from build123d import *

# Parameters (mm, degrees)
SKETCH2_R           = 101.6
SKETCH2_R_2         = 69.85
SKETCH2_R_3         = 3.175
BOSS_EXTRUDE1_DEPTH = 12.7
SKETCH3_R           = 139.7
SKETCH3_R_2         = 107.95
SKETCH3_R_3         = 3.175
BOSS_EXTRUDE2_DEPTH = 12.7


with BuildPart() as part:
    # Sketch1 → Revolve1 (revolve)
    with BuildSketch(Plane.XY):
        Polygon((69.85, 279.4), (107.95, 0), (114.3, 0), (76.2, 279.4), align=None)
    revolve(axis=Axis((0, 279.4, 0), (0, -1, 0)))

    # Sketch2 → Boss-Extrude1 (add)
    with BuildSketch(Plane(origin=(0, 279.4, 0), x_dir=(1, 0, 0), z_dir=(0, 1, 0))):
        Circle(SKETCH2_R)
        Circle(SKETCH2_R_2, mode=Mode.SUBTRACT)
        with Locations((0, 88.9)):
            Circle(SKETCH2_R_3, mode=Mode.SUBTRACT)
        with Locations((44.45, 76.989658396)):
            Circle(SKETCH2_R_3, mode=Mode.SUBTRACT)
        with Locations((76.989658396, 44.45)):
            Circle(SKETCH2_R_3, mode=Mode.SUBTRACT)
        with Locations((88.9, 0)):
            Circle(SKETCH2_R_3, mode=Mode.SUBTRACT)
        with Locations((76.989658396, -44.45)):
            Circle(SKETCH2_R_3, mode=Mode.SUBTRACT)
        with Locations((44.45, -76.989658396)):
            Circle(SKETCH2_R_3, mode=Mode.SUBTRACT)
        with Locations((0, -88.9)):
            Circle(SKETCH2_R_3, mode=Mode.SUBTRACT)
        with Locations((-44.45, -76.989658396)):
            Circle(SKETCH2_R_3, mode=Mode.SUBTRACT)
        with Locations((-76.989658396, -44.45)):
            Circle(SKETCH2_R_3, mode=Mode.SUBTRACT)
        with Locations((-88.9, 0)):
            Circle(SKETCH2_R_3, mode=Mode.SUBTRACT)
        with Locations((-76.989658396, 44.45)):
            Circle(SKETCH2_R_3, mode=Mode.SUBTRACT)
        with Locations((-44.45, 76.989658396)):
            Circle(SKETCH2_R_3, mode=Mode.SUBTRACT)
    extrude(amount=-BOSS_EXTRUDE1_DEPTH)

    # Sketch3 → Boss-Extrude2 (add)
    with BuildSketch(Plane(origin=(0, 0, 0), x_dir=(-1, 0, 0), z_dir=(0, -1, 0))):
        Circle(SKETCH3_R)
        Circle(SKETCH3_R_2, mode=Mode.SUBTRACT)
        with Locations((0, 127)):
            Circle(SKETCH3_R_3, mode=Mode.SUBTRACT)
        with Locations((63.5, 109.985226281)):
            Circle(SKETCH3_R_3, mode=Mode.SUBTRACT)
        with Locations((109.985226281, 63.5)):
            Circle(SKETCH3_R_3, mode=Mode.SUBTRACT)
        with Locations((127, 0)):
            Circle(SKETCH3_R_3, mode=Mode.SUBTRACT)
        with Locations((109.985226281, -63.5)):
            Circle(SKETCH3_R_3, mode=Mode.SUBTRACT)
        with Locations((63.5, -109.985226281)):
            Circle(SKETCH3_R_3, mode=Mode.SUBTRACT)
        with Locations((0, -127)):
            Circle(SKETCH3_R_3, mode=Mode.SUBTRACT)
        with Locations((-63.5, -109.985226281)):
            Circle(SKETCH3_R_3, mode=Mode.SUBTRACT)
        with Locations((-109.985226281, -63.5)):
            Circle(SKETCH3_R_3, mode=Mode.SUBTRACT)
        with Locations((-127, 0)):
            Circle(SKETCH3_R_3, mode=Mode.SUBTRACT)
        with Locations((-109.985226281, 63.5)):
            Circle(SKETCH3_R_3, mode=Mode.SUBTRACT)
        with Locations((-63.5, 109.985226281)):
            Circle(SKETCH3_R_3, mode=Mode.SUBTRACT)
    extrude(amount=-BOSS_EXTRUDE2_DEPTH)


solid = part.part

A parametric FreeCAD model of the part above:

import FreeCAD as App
import Part
import Sketcher
Q = App.Units.Quantity


def add_polygon(sketch, points):
    """Adds a closed chain of lines whose ends are joined by coincident constraints."""
    first, n = sketch.GeometryCount, len(points)
    for a, b in zip(points, points[1:] + points[:1]):
        sketch.addGeometry(Part.LineSegment(App.Vector(*a, 0), App.Vector(*b, 0)), False)
    for i in range(n):
        sketch.addConstraint(Sketcher.Constraint("Coincident", first + i, 2, first + (i + 1) % n, 1))

doc = App.newDocument("Part")
body = doc.addObject("PartDesign::Body", "Body")

# Sketch on XY plane
sketch1 = body.newObject("Sketcher::SketchObject", "Sketch")
sketch1.AttachmentSupport = (doc.getObject("XY_Plane"), [""])
sketch1.MapMode = "FlatFace"
add_polygon(sketch1, [(69.85, 279.4), (107.95, 0), (114.3, 0), (76.2, 279.4)])  # lines 0-3
sketch1.addConstraint(Sketcher.Constraint("Horizontal", 1))
sketch1.addConstraint(Sketcher.Constraint("Horizontal", 3))
sketch1.addConstraint(Sketcher.Constraint("PointOnObject", 0, 2, -1))
sketch1.addConstraint(Sketcher.Constraint("Parallel", 0, 2))
sketch1.addConstraint(Sketcher.Constraint("DistanceX", -1, 1, 2, 2, Q("3 in")))
sketch1.addConstraint(Sketcher.Constraint("DistanceY", -1, 1, 2, 2, Q("11 in")))
sketch1.addConstraint(Sketcher.Constraint("DistanceX", 1, 1, 1, 2, Q("0.25 in")))
sketch1.addConstraint(Sketcher.Constraint("DistanceX", -1, 1, 1, 2, Q("4.5 in")))
revolution = body.newObject("PartDesign::Revolution", "Revolution")
revolution.Profile = sketch1
revolution.ReferenceAxis = (sketch1, ["V_Axis"])
revolution.Angle = 360

# Sketch on XZ plane
sketch2 = body.newObject("Sketcher::SketchObject", "Sketch001")
sketch2.AttachmentSupport = (doc.getObject("XZ_Plane"), [""])
sketch2.MapMode = "FlatFace"
sketch2.AttachmentOffset = App.Placement(App.Vector(0, 0, -11 * 25.4), App.Rotation())
sketch2.addGeometry(Part.Circle(App.Vector(0, 0, 0), App.Vector(0, 0, 1), 101.6), False)
sketch2.addGeometry(Part.Circle(App.Vector(-44.45, 76.989658, 0), App.Vector(0, 0, 1), 3.175), False)
sketch2.addGeometry(Part.Circle(App.Vector(-76.989658, 44.45, 0), App.Vector(0, 0, 1), 3.175), False)
sketch2.addGeometry(Part.Circle(App.Vector(0, 88.9, 0), App.Vector(0, 0, 1), 3.175), False)
sketch2.addGeometry(Part.Circle(App.Vector(44.45, 76.989658, 0), App.Vector(0, 0, 1), 3.175), False)
sketch2.addGeometry(Part.Circle(App.Vector(76.989658, 44.45, 0), App.Vector(0, 0, 1), 3.175), False)
sketch2.addGeometry(Part.Circle(App.Vector(-88.9, 0, 0), App.Vector(0, 0, 1), 3.175), False)
sketch2.addGeometry(Part.Circle(App.Vector(-76.989658, -44.45, 0), App.Vector(0, 0, 1), 3.175), False)
sketch2.addGeometry(Part.Circle(App.Vector(-44.45, -76.989658, 0), App.Vector(0, 0, 1), 3.175), False)
sketch2.addGeometry(Part.Circle(App.Vector(0, 0, 0), App.Vector(0, 0, 1), 69.85), False)
sketch2.addGeometry(Part.Circle(App.Vector(88.9, 0, 0), App.Vector(0, 0, 1), 3.175), False)
sketch2.addGeometry(Part.Circle(App.Vector(76.989658, -44.45, 0), App.Vector(0, 0, 1), 3.175), False)
sketch2.addGeometry(Part.Circle(App.Vector(0, -88.9, 0), App.Vector(0, 0, 1), 3.175), False)
sketch2.addGeometry(Part.Circle(App.Vector(44.45, -76.989658, 0), App.Vector(0, 0, 1), 3.175), False)
sketch2.addConstraint(Sketcher.Constraint("Coincident", 0, 3, -1, 1))
sketch2.addConstraint(Sketcher.Constraint("Coincident", 9, 3, -1, 1))
sketch2.addConstraint(Sketcher.Constraint("Equal", 1, 2))
sketch2.addConstraint(Sketcher.Constraint("Equal", 2, 3))
sketch2.addConstraint(Sketcher.Constraint("Equal", 3, 4))
sketch2.addConstraint(Sketcher.Constraint("Equal", 4, 5))
sketch2.addConstraint(Sketcher.Constraint("Equal", 5, 6))
sketch2.addConstraint(Sketcher.Constraint("Equal", 6, 7))
sketch2.addConstraint(Sketcher.Constraint("Equal", 7, 8))
sketch2.addConstraint(Sketcher.Constraint("Equal", 8, 10))
sketch2.addConstraint(Sketcher.Constraint("Equal", 10, 11))
sketch2.addConstraint(Sketcher.Constraint("Equal", 11, 12))
sketch2.addConstraint(Sketcher.Constraint("Equal", 12, 13))
sketch2.addConstraint(Sketcher.Constraint("Symmetric", 5, 3, 7, 3, -1, 1))
sketch2.addConstraint(Sketcher.Constraint("Symmetric", 4, 3, 8, 3, -1, 1))
sketch2.addConstraint(Sketcher.Constraint("Symmetric", 6, 3, 10, 3, -1, 1))
sketch2.addConstraint(Sketcher.Constraint("Symmetric", 2, 3, 11, 3, -1, 1))
sketch2.addConstraint(Sketcher.Constraint("Symmetric", 3, 3, 12, 3, -1, 1))
sketch2.addConstraint(Sketcher.Constraint("Symmetric", 1, 3, 13, 3, -1, 1))
sketch2.addConstraint(Sketcher.Constraint("Symmetric", 1, 3, 4, 3, -2))
sketch2.addConstraint(Sketcher.Constraint("Symmetric", 2, 3, 5, 3, -2))
sketch2.addConstraint(Sketcher.Constraint("PointOnObject", 3, 3, -2))
sketch2.addConstraint(Sketcher.Constraint("PointOnObject", 6, 3, -1))
sketch2.addConstraint(Sketcher.Constraint("Diameter", 0, Q("8 in")))
sketch2.addConstraint(Sketcher.Constraint("Diameter", 9, Q("5.5 in")))
sketch2.addConstraint(Sketcher.Constraint("Diameter", 1, Q("0.25 in")))
sketch2.addConstraint(Sketcher.Constraint("DistanceY", -1, 1, 3, 3, Q("3.5 in")))
sketch2.addConstraint(Sketcher.Constraint("DistanceX", 6, 3, -1, 1, Q("3.5 in")))
sketch2.addConstraint(Sketcher.Constraint("DistanceX", 1, 3, 4, 3, Q("3.5 in")))
sketch2.addConstraint(Sketcher.Constraint("DistanceY", 7, 3, 2, 3, Q("3.5 in")))
sketch2.addConstraint(Sketcher.Constraint("DistanceY", -1, 1, 1, 3, 76.989658))
sketch2.addConstraint(Sketcher.Constraint("DistanceX", 2, 3, -1, 1, 76.989658))
pad1 = body.newObject("PartDesign::Pad", "Pad")
pad1.Profile = sketch2
pad1.Length = Q("0.5 in")

# Sketch on XZ plane
sketch3 = body.newObject("Sketcher::SketchObject", "Sketch002")
sketch3.AttachmentSupport = (doc.getObject("XZ_Plane"), [""])
sketch3.MapMode = "FlatFace"
sketch3.addGeometry(Part.Circle(App.Vector(0, 0, 0), App.Vector(0, 0, 1), 139.7), False)
sketch3.addGeometry(Part.Circle(App.Vector(63.5, 109.985226, 0), App.Vector(0, 0, 1), 3.175), False)
sketch3.addGeometry(Part.Circle(App.Vector(109.985226, 63.5, 0), App.Vector(0, 0, 1), 3.175), False)
sketch3.addGeometry(Part.Circle(App.Vector(0, 127, 0), App.Vector(0, 0, 1), 3.175), False)
sketch3.addGeometry(Part.Circle(App.Vector(-63.5, 109.985226, 0), App.Vector(0, 0, 1), 3.175), False)
sketch3.addGeometry(Part.Circle(App.Vector(-109.985226, 63.5, 0), App.Vector(0, 0, 1), 3.175), False)
sketch3.addGeometry(Part.Circle(App.Vector(127, 0, 0), App.Vector(0, 0, 1), 3.175), False)
sketch3.addGeometry(Part.Circle(App.Vector(109.985226, -63.5, 0), App.Vector(0, 0, 1), 3.175), False)
sketch3.addGeometry(Part.Circle(App.Vector(63.5, -109.985226, 0), App.Vector(0, 0, 1), 3.175), False)
sketch3.addGeometry(Part.Circle(App.Vector(0, 0, 0), App.Vector(0, 0, 1), 107.95), False)
sketch3.addGeometry(Part.Circle(App.Vector(-127, 0, 0), App.Vector(0, 0, 1), 3.175), False)
sketch3.addGeometry(Part.Circle(App.Vector(-109.985226, -63.5, 0), App.Vector(0, 0, 1), 3.175), False)
sketch3.addGeometry(Part.Circle(App.Vector(0, -127, 0), App.Vector(0, 0, 1), 3.175), False)
sketch3.addGeometry(Part.Circle(App.Vector(-63.5, -109.985226, 0), App.Vector(0, 0, 1), 3.175), False)
sketch3.addConstraint(Sketcher.Constraint("Coincident", 0, 3, -1, 1))
sketch3.addConstraint(Sketcher.Constraint("Coincident", 9, 3, -1, 1))
sketch3.addConstraint(Sketcher.Constraint("Equal", 1, 2))
sketch3.addConstraint(Sketcher.Constraint("Equal", 2, 3))
sketch3.addConstraint(Sketcher.Constraint("Equal", 3, 4))
sketch3.addConstraint(Sketcher.Constraint("Equal", 4, 5))
sketch3.addConstraint(Sketcher.Constraint("Equal", 5, 6))
sketch3.addConstraint(Sketcher.Constraint("Equal", 6, 7))
sketch3.addConstraint(Sketcher.Constraint("Equal", 7, 8))
sketch3.addConstraint(Sketcher.Constraint("Equal", 8, 10))
sketch3.addConstraint(Sketcher.Constraint("Equal", 10, 11))
sketch3.addConstraint(Sketcher.Constraint("Equal", 11, 12))
sketch3.addConstraint(Sketcher.Constraint("Equal", 12, 13))
sketch3.addConstraint(Sketcher.Constraint("Symmetric", 5, 3, 7, 3, -1, 1))
sketch3.addConstraint(Sketcher.Constraint("Symmetric", 4, 3, 8, 3, -1, 1))
sketch3.addConstraint(Sketcher.Constraint("Symmetric", 6, 3, 10, 3, -1, 1))
sketch3.addConstraint(Sketcher.Constraint("Symmetric", 2, 3, 11, 3, -1, 1))
sketch3.addConstraint(Sketcher.Constraint("Symmetric", 3, 3, 12, 3, -1, 1))
sketch3.addConstraint(Sketcher.Constraint("Symmetric", 1, 3, 13, 3, -1, 1))
sketch3.addConstraint(Sketcher.Constraint("Symmetric", 1, 3, 4, 3, -2))
sketch3.addConstraint(Sketcher.Constraint("Symmetric", 2, 3, 5, 3, -2))
sketch3.addConstraint(Sketcher.Constraint("PointOnObject", 3, 3, -2))
sketch3.addConstraint(Sketcher.Constraint("PointOnObject", 6, 3, -1))
sketch3.addConstraint(Sketcher.Constraint("Diameter", 0, Q("11 in")))
sketch3.addConstraint(Sketcher.Constraint("Diameter", 9, Q("8.5 in")))
sketch3.addConstraint(Sketcher.Constraint("Diameter", 1, Q("0.25 in")))
sketch3.addConstraint(Sketcher.Constraint("DistanceY", -1, 1, 3, 3, Q("5 in")))
sketch3.addConstraint(Sketcher.Constraint("DistanceX", -1, 1, 6, 3, Q("5 in")))
sketch3.addConstraint(Sketcher.Constraint("DistanceX", 4, 3, 1, 3, Q("5 in")))
sketch3.addConstraint(Sketcher.Constraint("DistanceY", 7, 3, 2, 3, Q("5 in")))
sketch3.addConstraint(Sketcher.Constraint("DistanceY", -1, 1, 1, 3, 109.985226))
sketch3.addConstraint(Sketcher.Constraint("DistanceX", -1, 1, 2, 3, 109.985226))
pad2 = body.newObject("PartDesign::Pad", "Pad001")
pad2.Profile = sketch3
pad2.Length = Q("0.5 in")
pad2.Reversed = True

doc.recompute()
